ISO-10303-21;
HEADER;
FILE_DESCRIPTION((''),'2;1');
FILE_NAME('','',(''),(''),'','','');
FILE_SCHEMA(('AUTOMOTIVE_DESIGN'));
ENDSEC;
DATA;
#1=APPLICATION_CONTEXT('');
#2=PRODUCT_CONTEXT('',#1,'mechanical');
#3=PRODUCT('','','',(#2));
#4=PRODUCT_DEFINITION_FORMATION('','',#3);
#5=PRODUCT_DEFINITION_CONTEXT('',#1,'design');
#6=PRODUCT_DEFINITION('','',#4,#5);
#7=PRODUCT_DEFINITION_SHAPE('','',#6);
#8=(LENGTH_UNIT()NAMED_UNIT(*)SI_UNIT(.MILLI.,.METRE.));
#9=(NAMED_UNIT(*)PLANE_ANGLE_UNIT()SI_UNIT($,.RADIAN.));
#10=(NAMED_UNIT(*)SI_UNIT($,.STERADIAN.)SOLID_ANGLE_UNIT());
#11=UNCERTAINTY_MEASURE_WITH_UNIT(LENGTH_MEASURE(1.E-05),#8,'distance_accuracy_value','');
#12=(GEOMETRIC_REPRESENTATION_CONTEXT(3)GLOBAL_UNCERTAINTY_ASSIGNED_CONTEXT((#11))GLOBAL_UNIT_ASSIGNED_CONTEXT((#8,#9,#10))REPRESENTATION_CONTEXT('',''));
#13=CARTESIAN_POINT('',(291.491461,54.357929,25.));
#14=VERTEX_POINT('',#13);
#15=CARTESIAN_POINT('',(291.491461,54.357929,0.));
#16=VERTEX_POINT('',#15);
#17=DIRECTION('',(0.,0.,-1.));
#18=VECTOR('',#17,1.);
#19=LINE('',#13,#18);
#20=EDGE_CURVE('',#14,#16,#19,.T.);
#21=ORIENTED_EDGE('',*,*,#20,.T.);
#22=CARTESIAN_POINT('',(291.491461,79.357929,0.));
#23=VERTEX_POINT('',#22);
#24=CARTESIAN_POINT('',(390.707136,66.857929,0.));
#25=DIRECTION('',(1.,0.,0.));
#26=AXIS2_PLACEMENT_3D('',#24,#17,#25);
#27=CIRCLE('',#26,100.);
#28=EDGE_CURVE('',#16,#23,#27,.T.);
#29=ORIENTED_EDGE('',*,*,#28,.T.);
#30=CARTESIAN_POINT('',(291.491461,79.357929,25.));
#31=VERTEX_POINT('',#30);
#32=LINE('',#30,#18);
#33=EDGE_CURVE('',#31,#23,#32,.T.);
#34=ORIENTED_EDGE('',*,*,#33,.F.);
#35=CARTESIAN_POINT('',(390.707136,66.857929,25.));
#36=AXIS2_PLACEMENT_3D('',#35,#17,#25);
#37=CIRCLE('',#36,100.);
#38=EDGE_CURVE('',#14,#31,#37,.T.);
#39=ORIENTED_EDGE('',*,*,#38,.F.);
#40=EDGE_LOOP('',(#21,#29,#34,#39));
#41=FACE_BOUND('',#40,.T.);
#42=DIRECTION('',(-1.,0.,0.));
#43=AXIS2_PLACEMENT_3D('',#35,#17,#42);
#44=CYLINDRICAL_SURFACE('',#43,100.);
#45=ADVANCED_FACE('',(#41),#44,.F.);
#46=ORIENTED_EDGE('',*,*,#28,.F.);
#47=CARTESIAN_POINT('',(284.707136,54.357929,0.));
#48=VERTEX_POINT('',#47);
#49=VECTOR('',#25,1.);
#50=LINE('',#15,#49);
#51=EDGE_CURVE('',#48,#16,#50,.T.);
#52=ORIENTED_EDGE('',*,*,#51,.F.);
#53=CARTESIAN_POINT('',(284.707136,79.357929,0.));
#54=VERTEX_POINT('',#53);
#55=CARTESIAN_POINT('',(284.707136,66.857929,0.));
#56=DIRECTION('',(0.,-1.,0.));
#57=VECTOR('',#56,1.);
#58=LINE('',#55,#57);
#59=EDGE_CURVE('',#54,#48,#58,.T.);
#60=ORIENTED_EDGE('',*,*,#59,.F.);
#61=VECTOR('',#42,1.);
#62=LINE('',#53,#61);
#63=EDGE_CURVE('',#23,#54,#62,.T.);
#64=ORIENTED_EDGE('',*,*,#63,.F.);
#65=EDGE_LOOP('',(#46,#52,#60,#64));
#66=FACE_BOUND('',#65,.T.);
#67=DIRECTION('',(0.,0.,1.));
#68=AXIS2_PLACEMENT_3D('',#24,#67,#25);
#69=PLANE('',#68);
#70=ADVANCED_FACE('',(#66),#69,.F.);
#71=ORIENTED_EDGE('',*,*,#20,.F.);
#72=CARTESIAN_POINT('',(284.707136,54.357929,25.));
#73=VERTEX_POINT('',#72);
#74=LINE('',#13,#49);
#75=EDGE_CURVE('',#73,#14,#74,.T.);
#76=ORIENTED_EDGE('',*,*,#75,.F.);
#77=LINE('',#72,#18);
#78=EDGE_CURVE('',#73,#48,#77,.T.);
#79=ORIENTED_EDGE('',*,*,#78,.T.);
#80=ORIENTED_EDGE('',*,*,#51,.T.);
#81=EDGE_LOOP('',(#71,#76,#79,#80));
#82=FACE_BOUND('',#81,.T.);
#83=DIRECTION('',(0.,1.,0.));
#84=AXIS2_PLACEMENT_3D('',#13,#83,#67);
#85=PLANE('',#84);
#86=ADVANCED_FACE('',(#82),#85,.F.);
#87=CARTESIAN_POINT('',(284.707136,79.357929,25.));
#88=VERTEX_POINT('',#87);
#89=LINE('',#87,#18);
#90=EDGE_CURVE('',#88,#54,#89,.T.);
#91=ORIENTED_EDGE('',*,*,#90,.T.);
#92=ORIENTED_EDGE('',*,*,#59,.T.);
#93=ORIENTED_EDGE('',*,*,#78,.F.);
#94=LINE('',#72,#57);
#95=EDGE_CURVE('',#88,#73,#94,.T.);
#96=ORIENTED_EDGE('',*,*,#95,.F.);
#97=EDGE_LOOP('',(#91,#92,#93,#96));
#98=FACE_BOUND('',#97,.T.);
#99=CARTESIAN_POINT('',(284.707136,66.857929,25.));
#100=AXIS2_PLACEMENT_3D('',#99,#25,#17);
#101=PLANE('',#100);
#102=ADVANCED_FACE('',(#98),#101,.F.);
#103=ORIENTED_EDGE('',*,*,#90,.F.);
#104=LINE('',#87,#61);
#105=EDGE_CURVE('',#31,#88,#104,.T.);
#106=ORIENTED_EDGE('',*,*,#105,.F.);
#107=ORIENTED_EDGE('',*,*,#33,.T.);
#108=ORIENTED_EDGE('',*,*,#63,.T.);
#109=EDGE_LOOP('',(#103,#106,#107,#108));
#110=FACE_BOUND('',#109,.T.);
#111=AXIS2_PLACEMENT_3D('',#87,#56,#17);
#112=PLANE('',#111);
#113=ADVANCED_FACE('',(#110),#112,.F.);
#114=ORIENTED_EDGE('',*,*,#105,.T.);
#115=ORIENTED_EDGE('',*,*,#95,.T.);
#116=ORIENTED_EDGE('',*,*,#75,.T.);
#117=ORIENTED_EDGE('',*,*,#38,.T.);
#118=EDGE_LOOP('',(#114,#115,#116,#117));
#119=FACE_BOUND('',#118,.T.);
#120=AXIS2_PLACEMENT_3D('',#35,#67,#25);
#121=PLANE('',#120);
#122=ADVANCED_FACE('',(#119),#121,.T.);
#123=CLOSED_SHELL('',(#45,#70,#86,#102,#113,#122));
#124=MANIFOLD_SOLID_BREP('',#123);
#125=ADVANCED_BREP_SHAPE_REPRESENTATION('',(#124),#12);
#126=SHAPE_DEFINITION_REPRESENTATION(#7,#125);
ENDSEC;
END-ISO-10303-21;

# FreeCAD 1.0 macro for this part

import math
import FreeCAD as App
import Part
import Sketcher
Q = App.Units.Quantity

doc = App.newDocument("Part")
params = doc.addObject("Spreadsheet::Sheet", "Params")
for row, (alias, value) in enumerate([
    ("sketch1_radius", "100 mm"),
    ("sketch1_height", "25 mm"),
    ("pad1_length", "25 mm"),
], start=1):
    params.set(f"A{row}", alias)
    params.set(f"B{row}", "=" + value)
    params.setAlias(f"B{row}", alias)

body = doc.addObject("PartDesign::Body", "Body")

# Sketch on XY plane
sketch1 = body.newObject("Sketcher::SketchObject", "Sketch")
sketch1.AttachmentSupport = (doc.getObject("XY_Plane"), [""])
sketch1.MapMode = "FlatFace"
sketch1.addGeometry([
    Part.LineSegment(App.Vector(291, 79, 0), App.Vector(285, 79, 0)),
    Part.LineSegment(App.Vector(285, 79, 0), App.Vector(285, 54, 0)),
    Part.LineSegment(App.Vector(285, 54, 0), App.Vector(291, 54, 0)),
    Part.ArcOfCircle(Part.Circle(App.Vector(391, 67, 0), App.Vector(0, 0, 1), 100), math.radians(172.82), math.radians(187.18)),
], False)
sketch1.addConstraint([
    Sketcher.Constraint("Coincident", 0, 2, 1, 1),
    Sketcher.Constraint("Coincident", 1, 2, 2, 1),
    Sketcher.Constraint("Coincident", 2, 2, 3, 2),
    Sketcher.Constraint("Coincident", 3, 1, 0, 1),
    Sketcher.Constraint("Horizontal", 0),
    Sketcher.Constraint("Vertical", 1),
    Sketcher.Constraint("Horizontal", 2),
    Sketcher.Constraint("Vertical", 2, 2, 3, 1),
    Sketcher.Constraint("Radius", 3, Q("100 mm")),
    Sketcher.Constraint("DistanceY", 1, 2, 1, 1, Q("25 mm")),
    Sketcher.Constraint("DistanceX", 0, 2, 3, 3, Q("106 mm")),
    Sketcher.Constraint("DistanceY", -1, 1, 3, 3, Q("66.857929 mm")),
    Sketcher.Constraint("DistanceX", -1, 1, 2, 2, Q("291.491461 mm")),
])
sketch1.setExpression("Constraints[8]", "Params.sketch1_radius")
sketch1.setExpression("Constraints[9]", "Params.sketch1_height")
pad1 = body.newObject("PartDesign::Pad", "Pad")
pad1.Profile = sketch1
pad1.setExpression("Length", "Params.pad1_length")

doc.recompute()
